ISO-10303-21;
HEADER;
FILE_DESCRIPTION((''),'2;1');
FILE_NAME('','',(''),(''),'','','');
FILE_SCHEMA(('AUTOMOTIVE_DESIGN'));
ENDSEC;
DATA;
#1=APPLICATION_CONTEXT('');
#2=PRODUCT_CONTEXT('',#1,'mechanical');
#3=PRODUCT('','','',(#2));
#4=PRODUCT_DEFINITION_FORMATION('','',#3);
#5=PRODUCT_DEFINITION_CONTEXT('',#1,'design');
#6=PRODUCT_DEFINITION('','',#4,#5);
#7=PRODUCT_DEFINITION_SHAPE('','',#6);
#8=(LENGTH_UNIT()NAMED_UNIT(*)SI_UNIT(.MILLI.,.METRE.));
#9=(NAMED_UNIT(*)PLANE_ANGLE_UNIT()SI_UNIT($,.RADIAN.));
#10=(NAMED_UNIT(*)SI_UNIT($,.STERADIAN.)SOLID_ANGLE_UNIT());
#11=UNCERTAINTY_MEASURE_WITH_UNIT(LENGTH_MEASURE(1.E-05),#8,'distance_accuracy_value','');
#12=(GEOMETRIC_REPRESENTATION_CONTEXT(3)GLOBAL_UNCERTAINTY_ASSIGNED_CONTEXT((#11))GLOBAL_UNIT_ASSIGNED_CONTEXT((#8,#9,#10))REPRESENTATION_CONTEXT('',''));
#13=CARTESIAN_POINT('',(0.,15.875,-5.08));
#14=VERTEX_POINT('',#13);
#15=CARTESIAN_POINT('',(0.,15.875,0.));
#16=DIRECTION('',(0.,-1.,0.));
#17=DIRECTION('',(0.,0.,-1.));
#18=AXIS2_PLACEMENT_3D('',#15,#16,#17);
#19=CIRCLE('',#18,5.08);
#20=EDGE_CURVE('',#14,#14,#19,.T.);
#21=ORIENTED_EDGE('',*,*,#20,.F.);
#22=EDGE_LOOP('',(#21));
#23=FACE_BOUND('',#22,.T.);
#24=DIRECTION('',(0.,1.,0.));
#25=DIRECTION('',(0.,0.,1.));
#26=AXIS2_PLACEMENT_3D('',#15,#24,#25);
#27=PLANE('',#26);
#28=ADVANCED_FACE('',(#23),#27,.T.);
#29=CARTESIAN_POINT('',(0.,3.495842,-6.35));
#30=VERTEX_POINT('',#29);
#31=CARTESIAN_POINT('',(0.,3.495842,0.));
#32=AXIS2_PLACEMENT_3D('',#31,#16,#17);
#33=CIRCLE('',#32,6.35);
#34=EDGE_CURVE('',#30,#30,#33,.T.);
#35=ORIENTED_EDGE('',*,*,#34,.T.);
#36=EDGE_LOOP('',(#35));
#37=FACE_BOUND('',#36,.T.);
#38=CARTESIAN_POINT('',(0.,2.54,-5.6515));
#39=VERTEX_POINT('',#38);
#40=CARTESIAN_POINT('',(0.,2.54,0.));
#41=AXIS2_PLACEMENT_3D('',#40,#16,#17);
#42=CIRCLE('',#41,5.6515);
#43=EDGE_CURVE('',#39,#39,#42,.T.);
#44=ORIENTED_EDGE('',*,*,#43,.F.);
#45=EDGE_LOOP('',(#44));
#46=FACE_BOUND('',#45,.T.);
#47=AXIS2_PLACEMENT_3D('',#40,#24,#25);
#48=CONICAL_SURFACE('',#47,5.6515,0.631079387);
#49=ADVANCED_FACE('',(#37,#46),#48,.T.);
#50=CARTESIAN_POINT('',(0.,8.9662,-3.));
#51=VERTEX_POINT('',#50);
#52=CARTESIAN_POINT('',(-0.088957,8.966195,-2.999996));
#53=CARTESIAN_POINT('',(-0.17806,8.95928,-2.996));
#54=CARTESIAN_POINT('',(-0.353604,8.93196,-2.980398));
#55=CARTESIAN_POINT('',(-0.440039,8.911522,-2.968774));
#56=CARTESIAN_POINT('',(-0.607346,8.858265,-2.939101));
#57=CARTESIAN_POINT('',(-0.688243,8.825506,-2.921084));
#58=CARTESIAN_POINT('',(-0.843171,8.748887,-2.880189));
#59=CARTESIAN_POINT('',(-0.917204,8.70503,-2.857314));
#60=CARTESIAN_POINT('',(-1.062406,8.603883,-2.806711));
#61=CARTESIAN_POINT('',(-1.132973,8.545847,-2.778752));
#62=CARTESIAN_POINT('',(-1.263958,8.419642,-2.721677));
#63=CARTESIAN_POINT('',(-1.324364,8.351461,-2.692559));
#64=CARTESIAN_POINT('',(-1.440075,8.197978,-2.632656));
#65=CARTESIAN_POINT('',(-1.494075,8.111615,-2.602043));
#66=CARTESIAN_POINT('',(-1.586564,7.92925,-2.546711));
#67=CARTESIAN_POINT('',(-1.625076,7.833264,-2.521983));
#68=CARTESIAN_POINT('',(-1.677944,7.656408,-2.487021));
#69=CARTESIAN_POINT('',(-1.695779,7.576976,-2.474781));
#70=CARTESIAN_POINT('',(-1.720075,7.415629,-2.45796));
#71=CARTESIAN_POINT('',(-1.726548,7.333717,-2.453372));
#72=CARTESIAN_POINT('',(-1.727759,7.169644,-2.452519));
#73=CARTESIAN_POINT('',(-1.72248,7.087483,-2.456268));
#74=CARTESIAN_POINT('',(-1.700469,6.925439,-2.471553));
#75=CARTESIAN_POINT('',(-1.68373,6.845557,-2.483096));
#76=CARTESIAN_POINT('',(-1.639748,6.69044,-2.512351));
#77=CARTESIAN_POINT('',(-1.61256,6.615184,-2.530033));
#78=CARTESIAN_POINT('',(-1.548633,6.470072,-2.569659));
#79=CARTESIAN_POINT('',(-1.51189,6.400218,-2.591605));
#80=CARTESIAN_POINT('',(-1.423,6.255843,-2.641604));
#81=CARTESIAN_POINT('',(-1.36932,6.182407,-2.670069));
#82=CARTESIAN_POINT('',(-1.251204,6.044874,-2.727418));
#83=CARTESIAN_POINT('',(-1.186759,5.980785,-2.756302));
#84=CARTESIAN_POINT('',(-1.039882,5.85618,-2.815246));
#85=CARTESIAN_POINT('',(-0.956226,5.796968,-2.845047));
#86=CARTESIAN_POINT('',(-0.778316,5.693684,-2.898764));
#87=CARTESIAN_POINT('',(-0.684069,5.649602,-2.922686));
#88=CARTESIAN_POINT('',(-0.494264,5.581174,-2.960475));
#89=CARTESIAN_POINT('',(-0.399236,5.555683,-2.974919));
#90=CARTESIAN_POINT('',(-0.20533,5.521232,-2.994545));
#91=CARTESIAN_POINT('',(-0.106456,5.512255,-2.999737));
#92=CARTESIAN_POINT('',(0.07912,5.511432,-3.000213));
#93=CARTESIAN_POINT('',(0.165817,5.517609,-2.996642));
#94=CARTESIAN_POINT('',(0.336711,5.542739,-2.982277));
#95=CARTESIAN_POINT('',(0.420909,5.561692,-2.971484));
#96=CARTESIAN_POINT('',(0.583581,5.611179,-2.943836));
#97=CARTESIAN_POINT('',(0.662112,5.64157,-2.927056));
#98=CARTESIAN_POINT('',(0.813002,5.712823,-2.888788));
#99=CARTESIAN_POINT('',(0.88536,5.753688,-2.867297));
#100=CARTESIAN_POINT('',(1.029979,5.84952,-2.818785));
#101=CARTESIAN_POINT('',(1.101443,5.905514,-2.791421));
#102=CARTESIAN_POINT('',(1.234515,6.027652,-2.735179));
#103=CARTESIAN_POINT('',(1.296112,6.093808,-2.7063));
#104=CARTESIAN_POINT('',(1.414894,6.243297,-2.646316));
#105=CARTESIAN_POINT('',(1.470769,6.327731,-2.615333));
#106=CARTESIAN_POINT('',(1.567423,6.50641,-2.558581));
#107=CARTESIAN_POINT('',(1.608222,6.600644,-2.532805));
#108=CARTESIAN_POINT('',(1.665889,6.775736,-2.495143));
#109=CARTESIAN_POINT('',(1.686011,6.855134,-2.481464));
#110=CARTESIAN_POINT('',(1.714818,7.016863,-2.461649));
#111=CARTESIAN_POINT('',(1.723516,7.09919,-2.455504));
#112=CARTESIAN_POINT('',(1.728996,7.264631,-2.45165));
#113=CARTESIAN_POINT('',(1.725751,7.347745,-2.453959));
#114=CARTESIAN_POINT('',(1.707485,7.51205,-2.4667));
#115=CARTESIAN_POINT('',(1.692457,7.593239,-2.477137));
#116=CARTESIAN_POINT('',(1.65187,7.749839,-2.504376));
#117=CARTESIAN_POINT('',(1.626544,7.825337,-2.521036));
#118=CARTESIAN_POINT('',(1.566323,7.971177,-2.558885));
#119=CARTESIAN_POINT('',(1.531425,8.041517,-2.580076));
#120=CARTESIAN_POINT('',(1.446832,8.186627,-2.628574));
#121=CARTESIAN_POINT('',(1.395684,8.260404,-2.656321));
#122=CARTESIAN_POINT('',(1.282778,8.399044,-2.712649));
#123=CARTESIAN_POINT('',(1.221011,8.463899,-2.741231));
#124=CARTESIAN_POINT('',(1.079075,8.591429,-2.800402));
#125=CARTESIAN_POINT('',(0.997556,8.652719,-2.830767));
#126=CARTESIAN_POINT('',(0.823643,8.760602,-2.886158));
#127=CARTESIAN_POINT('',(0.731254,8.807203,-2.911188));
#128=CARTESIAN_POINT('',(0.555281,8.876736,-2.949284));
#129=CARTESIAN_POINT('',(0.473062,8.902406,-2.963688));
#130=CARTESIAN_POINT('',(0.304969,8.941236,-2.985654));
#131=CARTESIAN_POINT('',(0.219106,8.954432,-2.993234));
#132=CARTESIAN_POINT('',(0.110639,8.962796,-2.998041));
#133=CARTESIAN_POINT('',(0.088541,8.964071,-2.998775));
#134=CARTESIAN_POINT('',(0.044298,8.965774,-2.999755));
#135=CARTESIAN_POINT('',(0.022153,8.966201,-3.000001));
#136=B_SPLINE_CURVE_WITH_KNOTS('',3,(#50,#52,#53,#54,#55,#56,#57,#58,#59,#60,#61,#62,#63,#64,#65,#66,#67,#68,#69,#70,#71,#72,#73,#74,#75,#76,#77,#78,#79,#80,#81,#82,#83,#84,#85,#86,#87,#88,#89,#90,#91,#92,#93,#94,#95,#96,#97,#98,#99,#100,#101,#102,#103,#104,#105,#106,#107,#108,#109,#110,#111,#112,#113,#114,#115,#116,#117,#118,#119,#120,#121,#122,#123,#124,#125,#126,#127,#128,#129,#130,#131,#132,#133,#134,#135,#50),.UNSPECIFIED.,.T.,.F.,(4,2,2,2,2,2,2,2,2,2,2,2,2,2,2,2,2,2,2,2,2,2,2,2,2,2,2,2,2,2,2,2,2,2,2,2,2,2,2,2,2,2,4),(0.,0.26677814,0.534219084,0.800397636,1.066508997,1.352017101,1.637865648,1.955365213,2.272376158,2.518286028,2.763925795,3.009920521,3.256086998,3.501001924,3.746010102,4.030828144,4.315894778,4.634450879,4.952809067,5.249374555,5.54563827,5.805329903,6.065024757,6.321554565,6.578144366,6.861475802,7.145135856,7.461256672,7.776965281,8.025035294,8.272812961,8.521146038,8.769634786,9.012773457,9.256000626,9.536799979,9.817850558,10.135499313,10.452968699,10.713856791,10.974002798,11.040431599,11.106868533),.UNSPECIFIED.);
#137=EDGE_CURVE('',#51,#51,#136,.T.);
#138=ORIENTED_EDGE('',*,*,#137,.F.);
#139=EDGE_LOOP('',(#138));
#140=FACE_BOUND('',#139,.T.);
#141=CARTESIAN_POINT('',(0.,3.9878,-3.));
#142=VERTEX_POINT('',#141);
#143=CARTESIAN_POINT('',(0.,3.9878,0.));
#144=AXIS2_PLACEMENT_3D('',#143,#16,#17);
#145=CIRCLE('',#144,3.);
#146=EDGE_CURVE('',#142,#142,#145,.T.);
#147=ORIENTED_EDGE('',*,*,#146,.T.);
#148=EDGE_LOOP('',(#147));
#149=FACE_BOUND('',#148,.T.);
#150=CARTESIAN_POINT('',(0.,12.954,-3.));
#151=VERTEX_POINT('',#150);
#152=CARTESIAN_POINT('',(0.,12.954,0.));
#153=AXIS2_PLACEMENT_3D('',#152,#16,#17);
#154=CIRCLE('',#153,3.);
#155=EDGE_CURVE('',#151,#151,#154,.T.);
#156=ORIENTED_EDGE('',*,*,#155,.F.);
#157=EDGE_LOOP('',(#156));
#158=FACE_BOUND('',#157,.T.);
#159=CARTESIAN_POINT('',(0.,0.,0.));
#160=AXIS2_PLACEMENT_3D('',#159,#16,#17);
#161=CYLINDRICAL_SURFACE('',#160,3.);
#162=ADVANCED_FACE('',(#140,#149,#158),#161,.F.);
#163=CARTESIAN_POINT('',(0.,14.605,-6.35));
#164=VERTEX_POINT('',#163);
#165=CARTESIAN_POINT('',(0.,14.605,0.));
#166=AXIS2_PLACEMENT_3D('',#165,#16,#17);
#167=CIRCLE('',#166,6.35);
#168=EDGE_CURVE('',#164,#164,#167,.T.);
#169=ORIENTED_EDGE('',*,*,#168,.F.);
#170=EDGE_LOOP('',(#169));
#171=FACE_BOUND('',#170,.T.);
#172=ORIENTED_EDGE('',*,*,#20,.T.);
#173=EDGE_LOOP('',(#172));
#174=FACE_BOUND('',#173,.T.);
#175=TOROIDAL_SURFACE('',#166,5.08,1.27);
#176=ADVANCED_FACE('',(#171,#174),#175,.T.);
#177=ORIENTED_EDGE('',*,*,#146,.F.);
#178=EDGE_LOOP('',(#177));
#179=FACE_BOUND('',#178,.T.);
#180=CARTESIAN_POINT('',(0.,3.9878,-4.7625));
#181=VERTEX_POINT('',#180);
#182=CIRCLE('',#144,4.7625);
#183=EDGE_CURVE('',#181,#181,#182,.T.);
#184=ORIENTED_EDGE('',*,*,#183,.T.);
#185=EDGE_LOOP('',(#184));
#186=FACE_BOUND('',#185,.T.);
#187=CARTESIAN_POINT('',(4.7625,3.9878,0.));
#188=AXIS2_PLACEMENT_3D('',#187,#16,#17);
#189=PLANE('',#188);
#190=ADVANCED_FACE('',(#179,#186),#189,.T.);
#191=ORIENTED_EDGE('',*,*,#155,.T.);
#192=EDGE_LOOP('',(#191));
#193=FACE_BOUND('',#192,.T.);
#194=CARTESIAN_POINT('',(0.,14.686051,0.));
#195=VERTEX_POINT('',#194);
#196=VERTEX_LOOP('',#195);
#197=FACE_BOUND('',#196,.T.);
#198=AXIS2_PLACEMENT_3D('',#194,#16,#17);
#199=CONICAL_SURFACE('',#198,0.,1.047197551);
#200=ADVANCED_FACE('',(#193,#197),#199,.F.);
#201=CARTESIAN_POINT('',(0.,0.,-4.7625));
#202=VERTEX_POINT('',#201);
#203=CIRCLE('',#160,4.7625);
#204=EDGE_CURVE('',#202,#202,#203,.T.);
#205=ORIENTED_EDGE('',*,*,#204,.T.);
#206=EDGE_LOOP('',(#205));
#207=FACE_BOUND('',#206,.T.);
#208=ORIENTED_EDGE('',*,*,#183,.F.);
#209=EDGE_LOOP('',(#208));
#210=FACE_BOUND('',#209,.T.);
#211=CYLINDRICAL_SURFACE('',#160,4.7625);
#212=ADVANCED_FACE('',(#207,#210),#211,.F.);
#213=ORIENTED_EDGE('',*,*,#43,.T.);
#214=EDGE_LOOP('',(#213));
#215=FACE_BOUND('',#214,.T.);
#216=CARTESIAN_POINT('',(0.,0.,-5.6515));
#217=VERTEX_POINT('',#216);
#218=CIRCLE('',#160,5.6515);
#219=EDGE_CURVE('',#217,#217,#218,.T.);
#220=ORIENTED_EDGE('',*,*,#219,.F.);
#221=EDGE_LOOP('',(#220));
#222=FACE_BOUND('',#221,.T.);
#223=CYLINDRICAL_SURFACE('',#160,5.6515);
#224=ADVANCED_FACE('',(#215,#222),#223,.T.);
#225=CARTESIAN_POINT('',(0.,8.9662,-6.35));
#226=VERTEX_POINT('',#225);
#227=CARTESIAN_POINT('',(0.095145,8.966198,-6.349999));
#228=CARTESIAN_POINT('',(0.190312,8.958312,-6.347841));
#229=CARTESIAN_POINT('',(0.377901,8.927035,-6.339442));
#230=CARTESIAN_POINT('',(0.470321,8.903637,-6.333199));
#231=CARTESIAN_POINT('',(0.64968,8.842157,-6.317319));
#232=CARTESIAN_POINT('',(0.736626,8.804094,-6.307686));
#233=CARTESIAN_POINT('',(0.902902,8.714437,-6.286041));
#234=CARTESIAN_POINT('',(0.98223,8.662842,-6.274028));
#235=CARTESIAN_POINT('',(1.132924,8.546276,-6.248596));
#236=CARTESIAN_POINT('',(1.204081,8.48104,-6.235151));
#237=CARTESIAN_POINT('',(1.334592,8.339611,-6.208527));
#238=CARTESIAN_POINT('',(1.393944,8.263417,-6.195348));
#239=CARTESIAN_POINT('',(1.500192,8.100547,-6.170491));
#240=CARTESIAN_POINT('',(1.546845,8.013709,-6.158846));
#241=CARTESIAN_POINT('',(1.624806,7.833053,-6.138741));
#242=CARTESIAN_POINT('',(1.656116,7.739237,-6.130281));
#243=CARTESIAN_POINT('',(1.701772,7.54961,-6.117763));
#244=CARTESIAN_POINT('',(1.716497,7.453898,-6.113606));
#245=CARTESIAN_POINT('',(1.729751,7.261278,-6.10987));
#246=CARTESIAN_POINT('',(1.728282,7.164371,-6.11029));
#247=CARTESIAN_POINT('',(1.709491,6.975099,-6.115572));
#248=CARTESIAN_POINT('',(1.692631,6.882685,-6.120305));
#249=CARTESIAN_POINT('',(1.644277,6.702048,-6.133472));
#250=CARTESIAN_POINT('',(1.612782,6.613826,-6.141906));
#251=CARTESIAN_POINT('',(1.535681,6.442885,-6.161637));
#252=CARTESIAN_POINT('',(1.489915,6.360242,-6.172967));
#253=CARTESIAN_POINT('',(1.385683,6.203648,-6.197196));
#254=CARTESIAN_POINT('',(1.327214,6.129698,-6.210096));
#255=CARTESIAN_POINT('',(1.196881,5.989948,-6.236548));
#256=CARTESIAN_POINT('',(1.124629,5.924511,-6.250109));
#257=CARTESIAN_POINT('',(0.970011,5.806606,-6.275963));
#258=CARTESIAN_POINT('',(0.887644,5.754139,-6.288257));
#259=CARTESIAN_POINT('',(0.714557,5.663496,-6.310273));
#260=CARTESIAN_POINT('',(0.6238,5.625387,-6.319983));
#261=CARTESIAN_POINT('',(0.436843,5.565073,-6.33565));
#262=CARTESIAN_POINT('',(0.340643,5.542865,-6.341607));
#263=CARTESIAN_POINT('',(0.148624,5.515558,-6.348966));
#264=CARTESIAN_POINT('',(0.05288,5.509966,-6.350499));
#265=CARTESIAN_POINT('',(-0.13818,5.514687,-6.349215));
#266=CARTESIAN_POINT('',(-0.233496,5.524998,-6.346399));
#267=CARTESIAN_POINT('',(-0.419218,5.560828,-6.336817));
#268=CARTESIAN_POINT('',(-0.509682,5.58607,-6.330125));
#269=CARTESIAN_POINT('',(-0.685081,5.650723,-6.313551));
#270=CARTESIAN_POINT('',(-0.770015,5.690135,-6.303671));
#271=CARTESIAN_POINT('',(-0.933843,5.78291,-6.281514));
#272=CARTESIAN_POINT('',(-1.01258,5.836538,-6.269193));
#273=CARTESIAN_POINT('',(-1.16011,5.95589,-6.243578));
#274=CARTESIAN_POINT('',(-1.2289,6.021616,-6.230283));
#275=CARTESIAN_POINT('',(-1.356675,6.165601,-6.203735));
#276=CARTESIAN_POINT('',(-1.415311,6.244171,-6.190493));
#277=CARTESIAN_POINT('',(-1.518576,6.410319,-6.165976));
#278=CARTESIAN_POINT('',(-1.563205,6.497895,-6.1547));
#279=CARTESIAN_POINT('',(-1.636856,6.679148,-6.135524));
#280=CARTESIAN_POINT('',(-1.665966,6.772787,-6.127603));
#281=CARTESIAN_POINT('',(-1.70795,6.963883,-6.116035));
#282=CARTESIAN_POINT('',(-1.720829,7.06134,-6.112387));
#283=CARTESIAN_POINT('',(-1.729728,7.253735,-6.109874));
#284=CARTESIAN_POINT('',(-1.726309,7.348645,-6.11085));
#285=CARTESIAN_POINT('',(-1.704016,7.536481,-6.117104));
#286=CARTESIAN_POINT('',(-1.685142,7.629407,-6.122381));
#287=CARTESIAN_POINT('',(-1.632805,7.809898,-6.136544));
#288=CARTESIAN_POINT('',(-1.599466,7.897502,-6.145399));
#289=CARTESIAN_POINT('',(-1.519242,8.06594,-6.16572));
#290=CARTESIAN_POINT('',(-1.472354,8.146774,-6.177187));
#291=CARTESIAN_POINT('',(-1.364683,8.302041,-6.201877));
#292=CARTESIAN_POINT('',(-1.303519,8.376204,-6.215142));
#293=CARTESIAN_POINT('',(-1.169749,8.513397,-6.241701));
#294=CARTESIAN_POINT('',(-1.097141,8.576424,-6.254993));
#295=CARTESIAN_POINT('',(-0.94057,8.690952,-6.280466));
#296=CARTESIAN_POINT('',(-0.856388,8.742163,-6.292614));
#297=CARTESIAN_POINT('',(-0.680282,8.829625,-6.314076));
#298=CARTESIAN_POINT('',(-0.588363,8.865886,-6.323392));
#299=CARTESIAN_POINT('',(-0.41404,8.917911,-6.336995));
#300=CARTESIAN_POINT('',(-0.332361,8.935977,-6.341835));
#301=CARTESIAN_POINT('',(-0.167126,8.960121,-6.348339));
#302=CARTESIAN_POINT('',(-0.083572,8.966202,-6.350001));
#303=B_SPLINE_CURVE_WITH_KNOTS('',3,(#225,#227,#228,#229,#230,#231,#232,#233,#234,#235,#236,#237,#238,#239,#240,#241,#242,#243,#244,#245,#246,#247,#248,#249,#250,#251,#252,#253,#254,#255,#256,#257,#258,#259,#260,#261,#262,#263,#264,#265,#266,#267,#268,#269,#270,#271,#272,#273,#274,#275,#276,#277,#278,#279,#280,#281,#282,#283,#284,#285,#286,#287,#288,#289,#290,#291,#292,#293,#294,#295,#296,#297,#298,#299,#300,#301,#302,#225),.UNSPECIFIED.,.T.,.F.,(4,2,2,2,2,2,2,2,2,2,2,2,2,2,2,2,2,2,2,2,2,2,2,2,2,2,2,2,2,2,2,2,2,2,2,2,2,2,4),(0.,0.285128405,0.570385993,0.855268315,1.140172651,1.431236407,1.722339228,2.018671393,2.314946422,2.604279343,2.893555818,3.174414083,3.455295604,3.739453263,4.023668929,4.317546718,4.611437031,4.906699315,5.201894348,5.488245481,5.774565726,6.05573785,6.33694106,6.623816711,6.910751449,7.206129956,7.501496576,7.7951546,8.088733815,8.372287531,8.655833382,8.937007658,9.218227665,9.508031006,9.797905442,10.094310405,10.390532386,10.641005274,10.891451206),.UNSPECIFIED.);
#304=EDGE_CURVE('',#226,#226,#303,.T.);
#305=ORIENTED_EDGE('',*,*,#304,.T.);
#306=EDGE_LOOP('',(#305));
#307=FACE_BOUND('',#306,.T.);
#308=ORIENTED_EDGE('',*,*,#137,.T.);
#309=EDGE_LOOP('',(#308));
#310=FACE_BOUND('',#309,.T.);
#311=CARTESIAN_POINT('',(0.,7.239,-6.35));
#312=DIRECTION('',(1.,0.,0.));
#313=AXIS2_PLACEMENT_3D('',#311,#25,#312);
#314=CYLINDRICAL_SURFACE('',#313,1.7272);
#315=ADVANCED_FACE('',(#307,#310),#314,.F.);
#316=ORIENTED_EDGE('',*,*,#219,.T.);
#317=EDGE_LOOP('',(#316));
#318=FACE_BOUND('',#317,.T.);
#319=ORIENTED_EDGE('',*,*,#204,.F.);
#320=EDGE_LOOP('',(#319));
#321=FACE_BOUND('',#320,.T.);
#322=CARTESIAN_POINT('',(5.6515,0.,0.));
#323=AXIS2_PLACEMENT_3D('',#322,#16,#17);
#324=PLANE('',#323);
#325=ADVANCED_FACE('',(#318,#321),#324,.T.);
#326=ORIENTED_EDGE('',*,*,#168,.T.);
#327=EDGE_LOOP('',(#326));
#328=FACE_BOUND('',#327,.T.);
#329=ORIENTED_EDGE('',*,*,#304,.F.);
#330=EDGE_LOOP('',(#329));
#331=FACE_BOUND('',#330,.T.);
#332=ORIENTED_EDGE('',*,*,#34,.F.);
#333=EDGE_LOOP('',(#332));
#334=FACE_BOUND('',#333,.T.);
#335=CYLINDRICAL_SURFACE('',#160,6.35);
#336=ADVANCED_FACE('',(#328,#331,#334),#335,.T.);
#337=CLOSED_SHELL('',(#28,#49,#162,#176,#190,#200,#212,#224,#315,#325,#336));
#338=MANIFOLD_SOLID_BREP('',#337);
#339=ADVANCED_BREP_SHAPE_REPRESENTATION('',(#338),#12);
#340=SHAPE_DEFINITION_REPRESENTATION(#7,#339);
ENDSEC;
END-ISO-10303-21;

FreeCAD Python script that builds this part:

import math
import FreeCAD as App
import Part
import Sketcher

V = App.Vector
Q = App.Units.Quantity

doc = App.newDocument("Part")
body = doc.addObject("PartDesign::Body", "Body")

sketch1 = doc.addObject("Sketcher::SketchObject", "Sketch")
body.addObject(sketch1)
sketch1.AttachmentSupport = (doc.XY_Plane, [""])
sketch1.MapMode = "FlatFace"
sketch1.addGeometry(Part.LineSegment(V(3, 13, 0), V(3, 4, 0)), False)
sketch1.addGeometry(Part.LineSegment(V(3, 4, 0), V(4.8, 4, 0)), False)
sketch1.addGeometry(Part.LineSegment(V(4.8, 4, 0), V(4.8, 0, 0)), False)
sketch1.addGeometry(Part.LineSegment(V(4.8, 0, 0), V(5.7, 0, 0)), False)
sketch1.addGeometry(Part.LineSegment(V(5.7, 0, 0), V(5.7, 2.5, 0)), False)
sketch1.addGeometry(Part.LineSegment(V(5.7, 2.5, 0), V(6.3, 3.5, 0)), False)
sketch1.addGeometry(Part.LineSegment(V(6.3, 3.5, 0), V(6.3, 14.6, 0)), False)
sketch1.addGeometry(Part.ArcOfCircle(Part.Circle(V(5.1, 14.6, 0), V(0, 0, 1), 1.3), math.radians(0), math.radians(90)), False)
sketch1.addGeometry(Part.LineSegment(V(5.1, 15.9, 0), V(0, 15.9, 0)), False)
sketch1.addGeometry(Part.LineSegment(V(0, 15.9, 0), V(0, 14.7, 0)), False)
sketch1.addGeometry(Part.LineSegment(V(0, 14.7, 0), V(3, 13, 0)), False)
sketch1.addConstraint(Sketcher.Constraint("Coincident", 0, 2, 1, 1))
sketch1.addConstraint(Sketcher.Constraint("Coincident", 1, 2, 2, 1))
sketch1.addConstraint(Sketcher.Constraint("Coincident", 2, 2, 3, 1))
sketch1.addConstraint(Sketcher.Constraint("Coincident", 3, 2, 4, 1))
sketch1.addConstraint(Sketcher.Constraint("Coincident", 4, 2, 5, 1))
sketch1.addConstraint(Sketcher.Constraint("Coincident", 5, 2, 6, 1))
sketch1.addConstraint(Sketcher.Constraint("Tangent", 6, 2, 7, 1))
sketch1.addConstraint(Sketcher.Constraint("Tangent", 7, 2, 8, 1))
sketch1.addConstraint(Sketcher.Constraint("Coincident", 8, 2, 9, 1))
sketch1.addConstraint(Sketcher.Constraint("Coincident", 9, 2, 10, 1))
sketch1.addConstraint(Sketcher.Constraint("Coincident", 10, 2, 0, 1))
sketch1.addConstraint(Sketcher.Constraint("Vertical", 0))
sketch1.addConstraint(Sketcher.Constraint("Horizontal", 1))
sketch1.addConstraint(Sketcher.Constraint("Vertical", 2))
sketch1.addConstraint(Sketcher.Constraint("Horizontal", 3))
sketch1.addConstraint(Sketcher.Constraint("Vertical", 4))
sketch1.addConstraint(Sketcher.Constraint("Vertical", 6))
sketch1.addConstraint(Sketcher.Constraint("Horizontal", 8))
sketch1.addConstraint(Sketcher.Constraint("Vertical", 9))
sketch1.addConstraint(Sketcher.Constraint("PointOnObject", 2, 2, -1))
sketch1.addConstraint(Sketcher.Constraint("PointOnObject", 8, 2, -2))
sketch1.addConstraint(Sketcher.Constraint("Radius", 7, Q("0.05 in")))
sketch1.addConstraint(Sketcher.Constraint("DistanceX", 8, 2, 8, 1, Q("0.2 in")))
sketch1.addConstraint(Sketcher.Constraint("DistanceY", 4, 1, 4, 2, Q("0.1 in")))
sketch1.addConstraint(Sketcher.Constraint("Angle", 10, Q("-30 deg")))
sketch1.addConstraint(Sketcher.Constraint("DistanceX", 3, 1, 3, 2, Q("0.035 in")))
sketch1.addConstraint(Sketcher.Constraint("DistanceY", 0, 2, 0, 1, Q("0.353 in")))
sketch1.addConstraint(Sketcher.Constraint("DistanceY", 2, 2, 2, 1, Q("0.157 in")))
sketch1.addConstraint(Sketcher.Constraint("DistanceY", -1, 1, 7, 3, Q("0.575 in")))
sketch1.addConstraint(Sketcher.Constraint("DistanceX", -1, 1, 1, 2, Q("0.1875 in")))
sketch1.addConstraint(Sketcher.Constraint("DistanceX", 1, 1, 1, 2, 1.7625))
sketch1.addConstraint(Sketcher.Constraint("DistanceY", 6, 1, 6, 2, 11.109158))
revolution = doc.addObject("PartDesign::Revolution", "Revolution")
body.addObject(revolution)
revolution.Profile = sketch1
revolution.ReferenceAxis = (sketch1, ["V_Axis"])
revolution.Angle = 360

sketch2 = doc.addObject("Sketcher::SketchObject", "Sketch001")
body.addObject(sketch2)
sketch2.AttachmentSupport = (doc.XY_Plane, [""])
sketch2.MapMode = "FlatFace"
sketch2.addGeometry(Part.Circle(V(0, 7.2, 0), V(0, 0, 1), 1.7), False)
sketch2.addConstraint(Sketcher.Constraint("PointOnObject", 0, 3, -2))
sketch2.addConstraint(Sketcher.Constraint("Diameter", 0, Q("0.136 in")))
sketch2.addConstraint(Sketcher.Constraint("DistanceY", -1, 1, 0, 3, Q("0.285 in")))
pocket1 = doc.addObject("PartDesign::Pocket", "Pocket")
body.addObject(pocket1)
pocket1.Profile = sketch2
pocket1.Type = "ThroughAll"

doc.recompute()
